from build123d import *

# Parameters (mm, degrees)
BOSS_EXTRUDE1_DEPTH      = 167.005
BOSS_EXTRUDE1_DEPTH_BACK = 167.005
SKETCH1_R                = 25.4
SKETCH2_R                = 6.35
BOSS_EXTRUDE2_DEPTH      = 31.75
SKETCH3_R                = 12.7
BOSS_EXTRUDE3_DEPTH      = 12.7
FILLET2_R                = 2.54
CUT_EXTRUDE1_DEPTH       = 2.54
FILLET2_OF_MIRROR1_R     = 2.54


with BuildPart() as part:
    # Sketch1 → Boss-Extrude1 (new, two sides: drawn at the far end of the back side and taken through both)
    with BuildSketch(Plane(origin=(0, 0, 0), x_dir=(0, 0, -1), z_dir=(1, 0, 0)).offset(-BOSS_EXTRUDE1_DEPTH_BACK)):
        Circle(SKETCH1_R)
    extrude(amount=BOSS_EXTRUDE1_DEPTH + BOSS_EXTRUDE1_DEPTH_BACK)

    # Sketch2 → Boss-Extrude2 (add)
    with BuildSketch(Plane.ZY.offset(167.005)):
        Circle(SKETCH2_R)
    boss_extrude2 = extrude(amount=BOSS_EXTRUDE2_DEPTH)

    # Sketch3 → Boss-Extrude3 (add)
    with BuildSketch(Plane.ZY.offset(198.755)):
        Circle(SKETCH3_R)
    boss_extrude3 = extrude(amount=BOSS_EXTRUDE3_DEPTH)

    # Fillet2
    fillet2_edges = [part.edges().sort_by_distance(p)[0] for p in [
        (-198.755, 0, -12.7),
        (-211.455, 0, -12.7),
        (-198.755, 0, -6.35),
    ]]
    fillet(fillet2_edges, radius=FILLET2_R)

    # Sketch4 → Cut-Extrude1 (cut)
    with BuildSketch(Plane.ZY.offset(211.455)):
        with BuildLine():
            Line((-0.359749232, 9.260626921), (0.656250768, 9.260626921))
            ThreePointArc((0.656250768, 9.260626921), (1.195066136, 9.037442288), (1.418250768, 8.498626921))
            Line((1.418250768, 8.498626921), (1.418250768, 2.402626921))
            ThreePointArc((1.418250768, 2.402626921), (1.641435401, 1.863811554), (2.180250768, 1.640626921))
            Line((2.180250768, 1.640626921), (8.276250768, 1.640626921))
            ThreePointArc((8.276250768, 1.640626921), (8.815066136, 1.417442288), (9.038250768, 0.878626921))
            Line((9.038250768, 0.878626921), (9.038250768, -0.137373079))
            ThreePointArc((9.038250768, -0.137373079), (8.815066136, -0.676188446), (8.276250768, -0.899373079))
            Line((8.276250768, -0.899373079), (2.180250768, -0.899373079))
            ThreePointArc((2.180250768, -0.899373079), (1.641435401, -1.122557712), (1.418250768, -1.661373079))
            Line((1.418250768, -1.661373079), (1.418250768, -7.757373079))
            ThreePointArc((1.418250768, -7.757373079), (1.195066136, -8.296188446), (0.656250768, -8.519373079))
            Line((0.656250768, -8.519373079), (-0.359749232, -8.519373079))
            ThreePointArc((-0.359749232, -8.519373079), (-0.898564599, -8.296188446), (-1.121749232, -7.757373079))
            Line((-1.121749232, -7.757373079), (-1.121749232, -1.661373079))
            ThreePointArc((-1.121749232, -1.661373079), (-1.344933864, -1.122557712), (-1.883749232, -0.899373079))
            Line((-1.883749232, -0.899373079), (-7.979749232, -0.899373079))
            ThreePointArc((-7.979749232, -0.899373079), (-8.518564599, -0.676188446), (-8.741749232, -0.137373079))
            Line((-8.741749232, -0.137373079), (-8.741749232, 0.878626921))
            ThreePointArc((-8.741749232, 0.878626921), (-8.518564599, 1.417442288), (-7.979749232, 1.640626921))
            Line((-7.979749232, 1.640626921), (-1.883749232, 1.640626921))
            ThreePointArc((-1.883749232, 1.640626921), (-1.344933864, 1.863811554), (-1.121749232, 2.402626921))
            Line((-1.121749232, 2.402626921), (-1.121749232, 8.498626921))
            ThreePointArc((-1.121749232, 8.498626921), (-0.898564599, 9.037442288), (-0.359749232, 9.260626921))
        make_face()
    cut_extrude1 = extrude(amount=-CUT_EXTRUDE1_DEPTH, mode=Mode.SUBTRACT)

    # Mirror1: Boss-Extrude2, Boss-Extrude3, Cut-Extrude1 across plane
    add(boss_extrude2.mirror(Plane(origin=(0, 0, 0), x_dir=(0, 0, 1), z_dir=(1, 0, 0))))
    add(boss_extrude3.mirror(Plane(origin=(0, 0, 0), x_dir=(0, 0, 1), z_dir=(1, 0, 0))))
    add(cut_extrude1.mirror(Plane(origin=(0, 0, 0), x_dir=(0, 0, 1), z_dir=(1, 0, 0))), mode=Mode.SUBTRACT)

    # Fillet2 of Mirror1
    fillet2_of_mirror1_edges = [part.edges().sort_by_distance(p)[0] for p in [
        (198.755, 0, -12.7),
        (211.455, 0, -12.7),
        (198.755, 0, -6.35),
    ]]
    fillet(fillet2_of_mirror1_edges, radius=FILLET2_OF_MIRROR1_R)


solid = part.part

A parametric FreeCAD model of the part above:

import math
import FreeCAD as App
import Part
import Sketcher
Q = App.Units.Quantity


def edges_at(feature, points):
    """Names of the edges that pass closest to the given points."""
    edges = feature.Shape.Edges
    near = lambda p: min(range(len(edges)), key=lambda i: edges[i].distToShape(Part.Vertex(*p))[0])
    return sorted({f"Edge{near(p) + 1}" for p in points})

doc = App.newDocument("Part")
body = doc.addObject("PartDesign::Body", "Body")

# Sketch on YZ plane
sketch1 = body.newObject("Sketcher::SketchObject", "Sketch")
sketch1.AttachmentSupport = (doc.getObject("YZ_Plane"), [""])
sketch1.MapMode = "FlatFace"
sketch1.addGeometry(Part.Circle(App.Vector(0, 0, 0), App.Vector(0, 0, 1), 25), False)
sketch1.addConstraint([
    Sketcher.Constraint("Coincident", 0, 3, -1, 1),
    Sketcher.Constraint("Diameter", 0, Q("2 in")),
])
pad1 = body.newObject("PartDesign::Pad", "Pad")
pad1.Profile = sketch1
pad1.Type = "TwoLengths"
pad1.Length = Q("6.575 in")
pad1.Length2 = Q("6.575 in")

# Sketch on YZ plane
sketch2 = body.newObject("Sketcher::SketchObject", "Sketch001")
sketch2.AttachmentSupport = (doc.getObject("YZ_Plane"), [""])
sketch2.MapMode = "FlatFace"
sketch2.AttachmentOffset = App.Placement(App.Vector(0, 0, -6.575 * 25.4), App.Rotation())
sketch2.addGeometry(Part.Circle(App.Vector(0, 0, 0), App.Vector(0, 0, 1), 6), False)
sketch2.addConstraint([
    Sketcher.Constraint("Coincident", 0, 3, -1, 1),
    Sketcher.Constraint("Diameter", 0, Q("0.5 in")),
])
pad2 = body.newObject("PartDesign::Pad", "Pad001")
pad2.Profile = sketch2
pad2.Length = Q("1.25 in")
pad2.Reversed = True

# Sketch on YZ plane
sketch3 = body.newObject("Sketcher::SketchObject", "Sketch002")
sketch3.AttachmentSupport = (doc.getObject("YZ_Plane"), [""])
sketch3.MapMode = "FlatFace"
sketch3.AttachmentOffset = App.Placement(App.Vector(0, 0, -7.825 * 25.4), App.Rotation())
sketch3.addGeometry(Part.Circle(App.Vector(0, 0, 0), App.Vector(0, 0, 1), 13), False)
sketch3.addConstraint([
    Sketcher.Constraint("Coincident", 0, 3, -1, 1),
    Sketcher.Constraint("Diameter", 0, Q("1 in")),
])
pad3 = body.newObject("PartDesign::Pad", "Pad002")
pad3.Profile = sketch3
pad3.Length = Q("0.5 in")
pad3.Reversed = True
doc.recompute()

fillet = body.newObject("PartDesign::Fillet", "Fillet")
fillet.Base = (pad3, edges_at(pad3, [(-198.755, 0, -12.7), (-211.455, 0, -12.7), (-198.755, 0, -6.35)]))
fillet.Radius = Q("0.1 in")

# Sketch on YZ plane
sketch4 = body.newObject("Sketcher::SketchObject", "Sketch003")
sketch4.AttachmentSupport = (doc.getObject("YZ_Plane"), [""])
sketch4.MapMode = "FlatFace"
sketch4.AttachmentOffset = App.Placement(App.Vector(0, 0, -8.325 * 25.4), App.Rotation())
sketch4.addGeometry([
    Part.LineSegment(App.Vector(9.3, 0.7, 0), App.Vector(9.3, -0.4, 0)),  # 0
    Part.ArcOfCircle(Part.Circle(App.Vector(8.5, -0.4, 0), App.Vector(0, 0, 1), 0.8), math.radians(-90), math.radians(0)),  # 1
    Part.LineSegment(App.Vector(8.5, -1.1, 0), App.Vector(2.4, -1.1, 0)),  # 2
    Part.ArcOfCircle(Part.Circle(App.Vector(2.4, -1.9, 0), App.Vector(0, 0, 1), 0.8), math.radians(90), math.radians(180)),  # 3
    Part.LineSegment(App.Vector(1.6, -1.9, 0), App.Vector(1.6, -8, 0)),  # 4
    Part.ArcOfCircle(Part.Circle(App.Vector(0.9, -8, 0), App.Vector(0, 0, 1), 0.8), math.radians(-90), math.radians(0)),  # 5
    Part.LineSegment(App.Vector(0.9, -8.7, 0), App.Vector(-0.1, -8.7, 0)),  # 6
    Part.ArcOfCircle(Part.Circle(App.Vector(-0.1, -8, 0), App.Vector(0, 0, 1), 0.8), math.radians(-180), math.radians(-90)),  # 7
    Part.LineSegment(App.Vector(-0.9, -8, 0), App.Vector(-0.9, -1.9, 0)),  # 8
    Part.ArcOfCircle(Part.Circle(App.Vector(-1.7, -1.9, 0), App.Vector(0, 0, 1), 0.8), math.radians(0), math.radians(90)),  # 9
    Part.LineSegment(App.Vector(-1.7, -1.1, 0), App.Vector(-7.8, -1.1, 0)),  # 10
    Part.ArcOfCircle(Part.Circle(App.Vector(-7.8, -0.4, 0), App.Vector(0, 0, 1), 0.8), math.radians(-180), math.radians(-90)),  # 11
    Part.LineSegment(App.Vector(-8.5, -0.4, 0), App.Vector(-8.5, 0.7, 0)),  # 12
    Part.ArcOfCircle(Part.Circle(App.Vector(-7.8, 0.7, 0), App.Vector(0, 0, 1), 0.8), math.radians(90), math.radians(180)),  # 13
    Part.LineSegment(App.Vector(-7.8, 1.4, 0), App.Vector(-1.7, 1.4, 0)),  # 14
    Part.ArcOfCircle(Part.Circle(App.Vector(-1.7, 2.2, 0), App.Vector(0, 0, 1), 0.8), math.radians(-90), math.radians(0)),  # 15
    Part.LineSegment(App.Vector(-0.9, 2.2, 0), App.Vector(-0.9, 8.3, 0)),  # 16
    Part.ArcOfCircle(Part.Circle(App.Vector(-0.1, 8.3, 0), App.Vector(0, 0, 1), 0.8), math.radians(90), math.radians(180)),  # 17
    Part.LineSegment(App.Vector(-0.1, 9, 0), App.Vector(0.9, 9, 0)),  # 18
    Part.ArcOfCircle(Part.Circle(App.Vector(0.9, 8.3, 0), App.Vector(0, 0, 1), 0.8), math.radians(0), math.radians(90)),  # 19
    Part.LineSegment(App.Vector(1.6, 8.3, 0), App.Vector(1.6, 2.2, 0)),  # 20
    Part.ArcOfCircle(Part.Circle(App.Vector(2.4, 2.2, 0), App.Vector(0, 0, 1), 0.8), math.radians(-180), math.radians(-90)),  # 21
    Part.LineSegment(App.Vector(2.4, 1.4, 0), App.Vector(8.5, 1.4, 0)),  # 22
    Part.ArcOfCircle(Part.Circle(App.Vector(8.5, 0.7, 0), App.Vector(0, 0, 1), 0.8), math.radians(0), math.radians(90)),  # 23
], False)
sketch4.addConstraint([
    Sketcher.Constraint("Tangent", 0, 2, 1, 2),
    Sketcher.Constraint("Tangent", 1, 1, 2, 1),
    Sketcher.Constraint("Tangent", 2, 2, 3, 1),
    Sketcher.Constraint("Tangent", 3, 2, 4, 1),
    Sketcher.Constraint("Tangent", 4, 2, 5, 2),
    Sketcher.Constraint("Tangent", 5, 1, 6, 1),
    Sketcher.Constraint("Tangent", 6, 2, 7, 2),
    Sketcher.Constraint("Tangent", 7, 1, 8, 1),
    Sketcher.Constraint("Tangent", 8, 2, 9, 1),
    Sketcher.Constraint("Tangent", 9, 2, 10, 1),
    Sketcher.Constraint("Tangent", 10, 2, 11, 2),
    Sketcher.Constraint("Tangent", 11, 1, 12, 1),
    Sketcher.Constraint("Tangent", 12, 2, 13, 2),
    Sketcher.Constraint("Tangent", 13, 1, 14, 1),
    Sketcher.Constraint("Tangent", 14, 2, 15, 1),
    Sketcher.Constraint("Tangent", 15, 2, 16, 1),
    Sketcher.Constraint("Tangent", 16, 2, 17, 2),
    Sketcher.Constraint("Tangent", 17, 1, 18, 1),
    Sketcher.Constraint("Tangent", 18, 2, 19, 2),
    Sketcher.Constraint("Tangent", 19, 1, 20, 1),
    Sketcher.Constraint("Tangent", 20, 2, 21, 1),
    Sketcher.Constraint("Tangent", 21, 2, 22, 1),
    Sketcher.Constraint("Tangent", 22, 2, 23, 2),
    Sketcher.Constraint("Tangent", 23, 1, 0, 1),
    Sketcher.Constraint("Vertical", 0),
    Sketcher.Constraint("Horizontal", 2),
    Sketcher.Constraint("Vertical", 4),
    Sketcher.Constraint("Horizontal", 6),
    Sketcher.Constraint("Vertical", 8),
    Sketcher.Constraint("Horizontal", 10),
    Sketcher.Constraint("Vertical", 12),
    Sketcher.Constraint("Horizontal", 14),
    Sketcher.Constraint("Vertical", 16),
    Sketcher.Constraint("Horizontal", 18),
    Sketcher.Constraint("Vertical", 20),
    Sketcher.Constraint("Horizontal", 22),
    Sketcher.Constraint("Equal", 1, 3),
    Sketcher.Constraint("Equal", 3, 5),
    Sketcher.Constraint("Equal", 5, 7),
    Sketcher.Constraint("Equal", 7, 9),
    Sketcher.Constraint("Equal", 9, 11),
    Sketcher.Constraint("Equal", 11, 13),
    Sketcher.Constraint("Equal", 13, 15),
    Sketcher.Constraint("Equal", 15, 17),
    Sketcher.Constraint("Equal", 17, 19),
    Sketcher.Constraint("Equal", 19, 21),
    Sketcher.Constraint("Equal", 21, 23),
    Sketcher.Constraint("Horizontal", 3, 3, 9, 3),
    Sketcher.Constraint("Horizontal", 15, 3, 21, 3),
    Sketcher.Constraint("Vertical", 9, 3, 15, 3),
    Sketcher.Constraint("Vertical", 5, 3, 19, 3),
    Sketcher.Constraint("Equal", 2, 10),
    Sketcher.Constraint("Equal", 18, 0),
    Sketcher.Constraint("Equal", 22, 4),
    Sketcher.Constraint("Equal", 8, 16),
    Sketcher.Constraint("Radius", 1, Q("0.03 in")),
    Sketcher.Constraint("DistanceX", 2, 2, 2, 1, Q("0.24 in")),
    Sketcher.Constraint("DistanceX", 6, 2, 6, 1, Q("0.04 in")),
    Sketcher.Constraint("DistanceY", 1, 3, -1, 1, 0.359749),
    Sketcher.Constraint("DistanceX", -1, 1, 1, 3, 8.498627),
])
pocket1 = body.newObject("PartDesign::Pocket", "Pocket")
pocket1.Profile = sketch4
pocket1.Length = Q("0.1 in")
pocket1.Reversed = True
doc.recompute()

mirrored = body.newObject("PartDesign::Mirrored", "Mirrored")
mirrored.Originals = [pad2, pad3, pocket1]
mirrored.MirrorPlane = (doc.getObject("YZ_Plane"), [""])
body.Tip = mirrored
doc.recompute()

fillet2 = body.newObject("PartDesign::Fillet", "Fillet001")
fillet2.Base = (mirrored, edges_at(mirrored, [(198.755, 0, -12.7), (211.455, 0, -12.7), (198.755, 0, -6.35)]))
fillet2.Radius = Q("0.1 in")

doc.recompute()
